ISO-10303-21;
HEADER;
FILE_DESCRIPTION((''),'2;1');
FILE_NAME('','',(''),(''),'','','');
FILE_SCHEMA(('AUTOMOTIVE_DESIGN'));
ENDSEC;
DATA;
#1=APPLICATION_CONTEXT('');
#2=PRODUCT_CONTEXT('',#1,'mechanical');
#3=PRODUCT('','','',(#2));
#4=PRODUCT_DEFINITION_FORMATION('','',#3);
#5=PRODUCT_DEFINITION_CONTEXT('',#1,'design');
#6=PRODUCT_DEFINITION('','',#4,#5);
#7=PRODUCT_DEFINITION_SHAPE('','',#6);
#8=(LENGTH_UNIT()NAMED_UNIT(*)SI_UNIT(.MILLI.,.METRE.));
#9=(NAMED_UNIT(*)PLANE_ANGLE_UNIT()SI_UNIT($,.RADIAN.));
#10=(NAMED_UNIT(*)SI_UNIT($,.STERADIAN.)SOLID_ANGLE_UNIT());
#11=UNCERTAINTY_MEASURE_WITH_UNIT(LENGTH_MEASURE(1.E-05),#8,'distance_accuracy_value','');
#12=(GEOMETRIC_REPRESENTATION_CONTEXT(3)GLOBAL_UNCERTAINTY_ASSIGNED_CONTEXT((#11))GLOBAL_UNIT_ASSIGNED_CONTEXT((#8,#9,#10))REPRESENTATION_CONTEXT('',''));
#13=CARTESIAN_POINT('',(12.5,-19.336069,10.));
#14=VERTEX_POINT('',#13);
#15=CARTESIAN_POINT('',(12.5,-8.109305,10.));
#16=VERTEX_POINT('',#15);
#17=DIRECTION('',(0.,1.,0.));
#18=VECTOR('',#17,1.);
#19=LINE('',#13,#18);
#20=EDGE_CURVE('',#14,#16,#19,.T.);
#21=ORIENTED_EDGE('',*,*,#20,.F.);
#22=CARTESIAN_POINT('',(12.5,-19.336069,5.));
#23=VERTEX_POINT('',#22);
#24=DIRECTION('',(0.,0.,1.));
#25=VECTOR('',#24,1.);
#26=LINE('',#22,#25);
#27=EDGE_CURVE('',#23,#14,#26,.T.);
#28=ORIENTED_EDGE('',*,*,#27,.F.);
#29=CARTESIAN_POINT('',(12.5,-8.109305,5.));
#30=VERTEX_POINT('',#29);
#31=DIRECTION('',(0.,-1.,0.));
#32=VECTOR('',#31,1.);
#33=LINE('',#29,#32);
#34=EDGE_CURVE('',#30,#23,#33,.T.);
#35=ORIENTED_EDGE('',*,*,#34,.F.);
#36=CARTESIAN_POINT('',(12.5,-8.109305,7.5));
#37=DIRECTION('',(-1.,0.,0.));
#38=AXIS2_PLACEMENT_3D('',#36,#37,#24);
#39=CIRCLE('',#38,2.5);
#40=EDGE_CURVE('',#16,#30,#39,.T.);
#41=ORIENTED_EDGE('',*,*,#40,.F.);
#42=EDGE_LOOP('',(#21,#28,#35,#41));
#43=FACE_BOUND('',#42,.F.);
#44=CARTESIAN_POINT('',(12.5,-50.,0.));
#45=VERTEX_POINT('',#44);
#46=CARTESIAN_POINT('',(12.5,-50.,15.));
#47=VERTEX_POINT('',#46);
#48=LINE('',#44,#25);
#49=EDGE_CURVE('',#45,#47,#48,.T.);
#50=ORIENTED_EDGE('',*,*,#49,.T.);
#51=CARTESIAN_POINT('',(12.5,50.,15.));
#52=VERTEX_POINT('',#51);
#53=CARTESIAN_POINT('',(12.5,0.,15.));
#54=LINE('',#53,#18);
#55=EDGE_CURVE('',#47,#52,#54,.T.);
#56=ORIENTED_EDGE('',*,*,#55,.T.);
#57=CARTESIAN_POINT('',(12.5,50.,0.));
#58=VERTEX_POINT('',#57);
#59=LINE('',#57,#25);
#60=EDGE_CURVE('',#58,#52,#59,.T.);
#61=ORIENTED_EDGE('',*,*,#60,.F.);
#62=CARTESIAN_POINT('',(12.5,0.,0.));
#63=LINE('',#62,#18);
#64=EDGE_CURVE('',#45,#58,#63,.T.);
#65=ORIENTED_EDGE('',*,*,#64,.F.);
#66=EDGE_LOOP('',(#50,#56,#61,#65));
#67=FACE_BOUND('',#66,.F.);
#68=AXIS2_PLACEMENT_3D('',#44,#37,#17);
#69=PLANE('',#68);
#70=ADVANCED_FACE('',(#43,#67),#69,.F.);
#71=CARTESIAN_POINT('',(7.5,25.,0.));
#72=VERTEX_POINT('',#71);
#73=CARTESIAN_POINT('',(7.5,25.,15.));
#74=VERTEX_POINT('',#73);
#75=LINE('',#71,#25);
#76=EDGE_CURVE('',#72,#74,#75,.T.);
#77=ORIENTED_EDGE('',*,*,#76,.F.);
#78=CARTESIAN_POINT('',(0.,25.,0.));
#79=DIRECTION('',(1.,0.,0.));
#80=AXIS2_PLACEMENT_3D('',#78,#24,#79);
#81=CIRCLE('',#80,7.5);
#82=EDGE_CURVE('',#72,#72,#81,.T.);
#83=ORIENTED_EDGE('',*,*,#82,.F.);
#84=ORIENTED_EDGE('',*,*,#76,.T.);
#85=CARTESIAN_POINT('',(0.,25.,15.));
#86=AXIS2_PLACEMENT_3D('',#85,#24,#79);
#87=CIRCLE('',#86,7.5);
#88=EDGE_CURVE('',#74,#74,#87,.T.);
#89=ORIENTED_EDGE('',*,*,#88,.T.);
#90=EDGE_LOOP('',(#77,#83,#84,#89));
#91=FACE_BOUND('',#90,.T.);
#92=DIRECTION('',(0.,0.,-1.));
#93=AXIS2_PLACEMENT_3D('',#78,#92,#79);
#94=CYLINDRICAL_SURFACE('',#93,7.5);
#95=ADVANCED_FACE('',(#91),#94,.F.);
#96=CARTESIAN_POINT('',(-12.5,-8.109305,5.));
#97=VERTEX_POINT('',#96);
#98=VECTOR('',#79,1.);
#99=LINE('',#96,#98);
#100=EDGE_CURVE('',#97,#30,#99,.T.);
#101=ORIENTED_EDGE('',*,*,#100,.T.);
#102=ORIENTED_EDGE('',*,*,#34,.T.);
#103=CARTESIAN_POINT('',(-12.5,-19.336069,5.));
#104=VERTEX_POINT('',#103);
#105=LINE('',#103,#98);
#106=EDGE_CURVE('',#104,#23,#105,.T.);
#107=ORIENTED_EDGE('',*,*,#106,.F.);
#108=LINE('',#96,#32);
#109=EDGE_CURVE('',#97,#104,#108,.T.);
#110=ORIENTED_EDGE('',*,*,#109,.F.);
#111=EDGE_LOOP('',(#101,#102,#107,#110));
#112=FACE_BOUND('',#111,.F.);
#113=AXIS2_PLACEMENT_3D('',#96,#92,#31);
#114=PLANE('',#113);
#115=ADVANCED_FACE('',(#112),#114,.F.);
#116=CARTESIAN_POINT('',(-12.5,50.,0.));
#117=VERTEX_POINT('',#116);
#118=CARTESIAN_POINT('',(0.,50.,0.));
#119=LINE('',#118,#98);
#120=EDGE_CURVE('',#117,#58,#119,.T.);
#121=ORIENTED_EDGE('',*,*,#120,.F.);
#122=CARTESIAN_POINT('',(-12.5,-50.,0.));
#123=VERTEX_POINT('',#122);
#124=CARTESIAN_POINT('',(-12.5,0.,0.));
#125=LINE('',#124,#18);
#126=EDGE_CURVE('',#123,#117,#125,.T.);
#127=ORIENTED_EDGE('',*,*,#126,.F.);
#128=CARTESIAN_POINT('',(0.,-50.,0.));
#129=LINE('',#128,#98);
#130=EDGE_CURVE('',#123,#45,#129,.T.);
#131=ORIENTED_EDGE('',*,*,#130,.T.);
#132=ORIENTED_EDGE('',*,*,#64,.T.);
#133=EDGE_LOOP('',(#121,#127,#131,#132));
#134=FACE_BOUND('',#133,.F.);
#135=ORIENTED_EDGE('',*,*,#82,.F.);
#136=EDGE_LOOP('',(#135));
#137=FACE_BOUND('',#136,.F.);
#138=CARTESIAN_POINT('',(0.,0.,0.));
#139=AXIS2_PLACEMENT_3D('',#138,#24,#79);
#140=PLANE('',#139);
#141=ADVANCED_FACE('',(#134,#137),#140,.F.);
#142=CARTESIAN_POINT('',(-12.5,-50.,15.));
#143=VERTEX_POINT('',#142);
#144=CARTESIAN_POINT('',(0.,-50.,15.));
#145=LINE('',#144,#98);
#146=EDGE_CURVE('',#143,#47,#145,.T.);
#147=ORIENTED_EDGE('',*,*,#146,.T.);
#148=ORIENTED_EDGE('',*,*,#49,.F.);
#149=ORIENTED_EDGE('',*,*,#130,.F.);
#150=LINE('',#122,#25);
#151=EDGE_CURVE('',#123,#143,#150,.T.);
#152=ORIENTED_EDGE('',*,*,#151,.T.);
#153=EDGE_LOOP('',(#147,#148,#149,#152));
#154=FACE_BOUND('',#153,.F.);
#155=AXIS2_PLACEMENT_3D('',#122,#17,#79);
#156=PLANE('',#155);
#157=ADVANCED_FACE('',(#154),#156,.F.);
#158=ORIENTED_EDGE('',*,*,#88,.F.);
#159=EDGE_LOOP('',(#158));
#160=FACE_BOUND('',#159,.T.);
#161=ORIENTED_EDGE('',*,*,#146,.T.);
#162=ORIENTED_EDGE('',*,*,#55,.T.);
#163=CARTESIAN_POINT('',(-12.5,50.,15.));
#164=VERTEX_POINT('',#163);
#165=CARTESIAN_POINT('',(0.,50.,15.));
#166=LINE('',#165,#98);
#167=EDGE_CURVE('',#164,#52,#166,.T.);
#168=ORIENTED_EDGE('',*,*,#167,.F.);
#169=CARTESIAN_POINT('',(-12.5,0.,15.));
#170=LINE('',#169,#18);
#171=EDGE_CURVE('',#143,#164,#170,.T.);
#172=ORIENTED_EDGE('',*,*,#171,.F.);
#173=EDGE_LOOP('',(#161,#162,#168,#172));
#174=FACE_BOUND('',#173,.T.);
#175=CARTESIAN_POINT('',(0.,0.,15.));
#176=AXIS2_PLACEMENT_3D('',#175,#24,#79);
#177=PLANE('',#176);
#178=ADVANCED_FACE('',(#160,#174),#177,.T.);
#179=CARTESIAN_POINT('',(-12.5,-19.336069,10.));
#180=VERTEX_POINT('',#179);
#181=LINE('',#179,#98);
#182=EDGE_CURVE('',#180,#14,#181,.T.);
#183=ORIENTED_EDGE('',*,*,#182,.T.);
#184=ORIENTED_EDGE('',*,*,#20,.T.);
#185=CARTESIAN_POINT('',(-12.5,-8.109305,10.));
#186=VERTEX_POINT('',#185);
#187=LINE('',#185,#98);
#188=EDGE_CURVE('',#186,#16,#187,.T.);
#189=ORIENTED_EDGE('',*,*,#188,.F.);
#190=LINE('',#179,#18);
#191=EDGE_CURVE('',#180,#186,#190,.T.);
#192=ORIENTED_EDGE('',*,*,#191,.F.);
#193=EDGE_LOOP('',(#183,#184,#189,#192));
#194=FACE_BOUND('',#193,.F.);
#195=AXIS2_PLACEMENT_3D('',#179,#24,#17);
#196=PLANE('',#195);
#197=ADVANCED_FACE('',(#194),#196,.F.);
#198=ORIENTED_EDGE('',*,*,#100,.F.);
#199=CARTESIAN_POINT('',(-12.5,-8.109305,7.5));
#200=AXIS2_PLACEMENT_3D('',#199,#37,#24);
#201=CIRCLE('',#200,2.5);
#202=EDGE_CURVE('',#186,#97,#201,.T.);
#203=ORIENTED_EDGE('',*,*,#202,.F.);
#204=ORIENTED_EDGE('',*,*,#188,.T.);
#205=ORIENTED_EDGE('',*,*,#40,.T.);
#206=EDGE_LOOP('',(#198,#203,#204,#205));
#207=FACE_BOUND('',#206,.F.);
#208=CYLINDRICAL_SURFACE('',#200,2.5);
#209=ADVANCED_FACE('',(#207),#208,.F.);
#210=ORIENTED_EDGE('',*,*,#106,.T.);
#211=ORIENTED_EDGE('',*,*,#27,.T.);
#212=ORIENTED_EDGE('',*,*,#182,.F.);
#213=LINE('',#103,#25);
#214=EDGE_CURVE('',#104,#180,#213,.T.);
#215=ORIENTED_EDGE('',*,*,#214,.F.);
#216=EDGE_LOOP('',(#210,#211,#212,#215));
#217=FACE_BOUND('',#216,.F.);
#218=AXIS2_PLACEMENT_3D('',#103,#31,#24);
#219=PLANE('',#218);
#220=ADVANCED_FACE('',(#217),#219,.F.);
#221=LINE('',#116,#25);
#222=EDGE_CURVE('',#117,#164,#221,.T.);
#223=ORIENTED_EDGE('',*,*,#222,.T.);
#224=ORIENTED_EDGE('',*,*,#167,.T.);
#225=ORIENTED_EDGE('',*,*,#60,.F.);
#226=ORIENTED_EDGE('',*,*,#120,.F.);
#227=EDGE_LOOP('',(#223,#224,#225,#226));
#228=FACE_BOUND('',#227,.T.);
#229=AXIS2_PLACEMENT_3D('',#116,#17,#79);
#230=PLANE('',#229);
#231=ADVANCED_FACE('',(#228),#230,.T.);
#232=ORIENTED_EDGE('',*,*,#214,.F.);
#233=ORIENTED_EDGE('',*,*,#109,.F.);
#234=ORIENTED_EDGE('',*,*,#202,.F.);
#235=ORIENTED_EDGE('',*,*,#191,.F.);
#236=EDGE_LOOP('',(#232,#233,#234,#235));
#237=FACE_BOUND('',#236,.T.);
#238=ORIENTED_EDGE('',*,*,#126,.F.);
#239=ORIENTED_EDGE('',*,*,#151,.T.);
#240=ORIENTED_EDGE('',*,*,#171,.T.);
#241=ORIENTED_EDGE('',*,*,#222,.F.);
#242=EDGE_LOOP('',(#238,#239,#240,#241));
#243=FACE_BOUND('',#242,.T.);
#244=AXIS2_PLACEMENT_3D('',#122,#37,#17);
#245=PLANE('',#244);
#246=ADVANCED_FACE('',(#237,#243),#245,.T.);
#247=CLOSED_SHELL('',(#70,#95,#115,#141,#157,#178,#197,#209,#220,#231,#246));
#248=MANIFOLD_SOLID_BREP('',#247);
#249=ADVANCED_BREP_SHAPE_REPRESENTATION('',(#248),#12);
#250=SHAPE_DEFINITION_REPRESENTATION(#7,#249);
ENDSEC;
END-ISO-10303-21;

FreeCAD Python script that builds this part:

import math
import FreeCAD as App
import Part
import Sketcher

V = App.Vector
Q = App.Units.Quantity

doc = App.newDocument("Part")
body = doc.addObject("PartDesign::Body", "Body")

sketch1 = body.newObject("Sketcher::SketchObject", "Sketch")
sketch1.AttachmentSupport = (doc.getObject("XY_Plane"), [""])
sketch1.MapMode = "FlatFace"
sketch1.addGeometry([
    Part.LineSegment(V(-12, 50, 0), V(-12, -50, 0)),
    Part.LineSegment(V(-12, -50, 0), V(12, -50, 0)),
    Part.LineSegment(V(12, -50, 0), V(12, 50, 0)),
    Part.LineSegment(V(12, 50, 0), V(-12, 50, 0)),
    Part.Circle(V(0, 25, 0), V(0, 0, 1), 8),
], False)
sketch1.addConstraint([
    Sketcher.Constraint("Coincident", 0, 2, 1, 1),
    Sketcher.Constraint("Coincident", 1, 2, 2, 1),
    Sketcher.Constraint("Coincident", 2, 2, 3, 1),
    Sketcher.Constraint("Coincident", 3, 2, 0, 1),
    Sketcher.Constraint("Vertical", 0),
    Sketcher.Constraint("Horizontal", 1),
    Sketcher.Constraint("Vertical", 2),
    Sketcher.Constraint("Horizontal", 3),
    Sketcher.Constraint("Symmetric", 0, 2, 2, 2, -1, 1),
    Sketcher.Constraint("PointOnObject", 4, 3, -2),
    Sketcher.Constraint("Diameter", 4, Q("15 mm")),
    Sketcher.Constraint("DistanceX", 1, 1, 1, 2, Q("25 mm")),
    Sketcher.Constraint("DistanceY", 0, 2, 0, 1, Q("100 mm")),
    Sketcher.Constraint("DistanceY", -1, 1, 4, 3, Q("25 mm")),
])
pad1 = body.newObject("PartDesign::Pad", "Pad")
pad1.Profile = sketch1
pad1.Length = 15

sketch2 = body.newObject("Sketcher::SketchObject", "Sketch001")
sketch2.AttachmentSupport = (doc.getObject("YZ_Plane"), [""])
sketch2.MapMode = "FlatFace"
sketch2.AttachmentOffset = App.Placement(V(0, 0, -12.5), App.Rotation())
sketch2.addGeometry([
    Part.LineSegment(V(-8.1, 5, 0), V(-19.3, 5, 0)),
    Part.LineSegment(V(-19.3, 5, 0), V(-19.3, 10, 0)),
    Part.LineSegment(V(-19.3, 10, 0), V(-8.1, 10, 0)),
    Part.ArcOfCircle(Part.Circle(V(-8.1, 7.5, 0), V(0, 0, 1), 2.5), math.radians(-90), math.radians(90)),
], False)
sketch2.addConstraint([
    Sketcher.Constraint("Coincident", 0, 2, 1, 1),
    Sketcher.Constraint("Coincident", 1, 2, 2, 1),
    Sketcher.Constraint("Tangent", 2, 2, 3, 2),
    Sketcher.Constraint("Tangent", 3, 1, 0, 1),
    Sketcher.Constraint("Horizontal", 0),
    Sketcher.Constraint("Vertical", 1),
    Sketcher.Constraint("Horizontal", 2),
    Sketcher.Constraint("Radius", 3, Q("2.5 mm")),
    Sketcher.Constraint("DistanceY", -1, 1, 0, 2, Q("5 mm")),
    Sketcher.Constraint("DistanceX", 0, 2, 0, 1, Q("11.226764 mm")),
    Sketcher.Constraint("DistanceX", 0, 2, -1, 1, Q("19.336069 mm")),
])
pocket1 = body.newObject("PartDesign::Pocket", "Pocket")
pocket1.Profile = sketch2
pocket1.Type = "ThroughAll"
pocket1.Reversed = True

doc.recompute()
